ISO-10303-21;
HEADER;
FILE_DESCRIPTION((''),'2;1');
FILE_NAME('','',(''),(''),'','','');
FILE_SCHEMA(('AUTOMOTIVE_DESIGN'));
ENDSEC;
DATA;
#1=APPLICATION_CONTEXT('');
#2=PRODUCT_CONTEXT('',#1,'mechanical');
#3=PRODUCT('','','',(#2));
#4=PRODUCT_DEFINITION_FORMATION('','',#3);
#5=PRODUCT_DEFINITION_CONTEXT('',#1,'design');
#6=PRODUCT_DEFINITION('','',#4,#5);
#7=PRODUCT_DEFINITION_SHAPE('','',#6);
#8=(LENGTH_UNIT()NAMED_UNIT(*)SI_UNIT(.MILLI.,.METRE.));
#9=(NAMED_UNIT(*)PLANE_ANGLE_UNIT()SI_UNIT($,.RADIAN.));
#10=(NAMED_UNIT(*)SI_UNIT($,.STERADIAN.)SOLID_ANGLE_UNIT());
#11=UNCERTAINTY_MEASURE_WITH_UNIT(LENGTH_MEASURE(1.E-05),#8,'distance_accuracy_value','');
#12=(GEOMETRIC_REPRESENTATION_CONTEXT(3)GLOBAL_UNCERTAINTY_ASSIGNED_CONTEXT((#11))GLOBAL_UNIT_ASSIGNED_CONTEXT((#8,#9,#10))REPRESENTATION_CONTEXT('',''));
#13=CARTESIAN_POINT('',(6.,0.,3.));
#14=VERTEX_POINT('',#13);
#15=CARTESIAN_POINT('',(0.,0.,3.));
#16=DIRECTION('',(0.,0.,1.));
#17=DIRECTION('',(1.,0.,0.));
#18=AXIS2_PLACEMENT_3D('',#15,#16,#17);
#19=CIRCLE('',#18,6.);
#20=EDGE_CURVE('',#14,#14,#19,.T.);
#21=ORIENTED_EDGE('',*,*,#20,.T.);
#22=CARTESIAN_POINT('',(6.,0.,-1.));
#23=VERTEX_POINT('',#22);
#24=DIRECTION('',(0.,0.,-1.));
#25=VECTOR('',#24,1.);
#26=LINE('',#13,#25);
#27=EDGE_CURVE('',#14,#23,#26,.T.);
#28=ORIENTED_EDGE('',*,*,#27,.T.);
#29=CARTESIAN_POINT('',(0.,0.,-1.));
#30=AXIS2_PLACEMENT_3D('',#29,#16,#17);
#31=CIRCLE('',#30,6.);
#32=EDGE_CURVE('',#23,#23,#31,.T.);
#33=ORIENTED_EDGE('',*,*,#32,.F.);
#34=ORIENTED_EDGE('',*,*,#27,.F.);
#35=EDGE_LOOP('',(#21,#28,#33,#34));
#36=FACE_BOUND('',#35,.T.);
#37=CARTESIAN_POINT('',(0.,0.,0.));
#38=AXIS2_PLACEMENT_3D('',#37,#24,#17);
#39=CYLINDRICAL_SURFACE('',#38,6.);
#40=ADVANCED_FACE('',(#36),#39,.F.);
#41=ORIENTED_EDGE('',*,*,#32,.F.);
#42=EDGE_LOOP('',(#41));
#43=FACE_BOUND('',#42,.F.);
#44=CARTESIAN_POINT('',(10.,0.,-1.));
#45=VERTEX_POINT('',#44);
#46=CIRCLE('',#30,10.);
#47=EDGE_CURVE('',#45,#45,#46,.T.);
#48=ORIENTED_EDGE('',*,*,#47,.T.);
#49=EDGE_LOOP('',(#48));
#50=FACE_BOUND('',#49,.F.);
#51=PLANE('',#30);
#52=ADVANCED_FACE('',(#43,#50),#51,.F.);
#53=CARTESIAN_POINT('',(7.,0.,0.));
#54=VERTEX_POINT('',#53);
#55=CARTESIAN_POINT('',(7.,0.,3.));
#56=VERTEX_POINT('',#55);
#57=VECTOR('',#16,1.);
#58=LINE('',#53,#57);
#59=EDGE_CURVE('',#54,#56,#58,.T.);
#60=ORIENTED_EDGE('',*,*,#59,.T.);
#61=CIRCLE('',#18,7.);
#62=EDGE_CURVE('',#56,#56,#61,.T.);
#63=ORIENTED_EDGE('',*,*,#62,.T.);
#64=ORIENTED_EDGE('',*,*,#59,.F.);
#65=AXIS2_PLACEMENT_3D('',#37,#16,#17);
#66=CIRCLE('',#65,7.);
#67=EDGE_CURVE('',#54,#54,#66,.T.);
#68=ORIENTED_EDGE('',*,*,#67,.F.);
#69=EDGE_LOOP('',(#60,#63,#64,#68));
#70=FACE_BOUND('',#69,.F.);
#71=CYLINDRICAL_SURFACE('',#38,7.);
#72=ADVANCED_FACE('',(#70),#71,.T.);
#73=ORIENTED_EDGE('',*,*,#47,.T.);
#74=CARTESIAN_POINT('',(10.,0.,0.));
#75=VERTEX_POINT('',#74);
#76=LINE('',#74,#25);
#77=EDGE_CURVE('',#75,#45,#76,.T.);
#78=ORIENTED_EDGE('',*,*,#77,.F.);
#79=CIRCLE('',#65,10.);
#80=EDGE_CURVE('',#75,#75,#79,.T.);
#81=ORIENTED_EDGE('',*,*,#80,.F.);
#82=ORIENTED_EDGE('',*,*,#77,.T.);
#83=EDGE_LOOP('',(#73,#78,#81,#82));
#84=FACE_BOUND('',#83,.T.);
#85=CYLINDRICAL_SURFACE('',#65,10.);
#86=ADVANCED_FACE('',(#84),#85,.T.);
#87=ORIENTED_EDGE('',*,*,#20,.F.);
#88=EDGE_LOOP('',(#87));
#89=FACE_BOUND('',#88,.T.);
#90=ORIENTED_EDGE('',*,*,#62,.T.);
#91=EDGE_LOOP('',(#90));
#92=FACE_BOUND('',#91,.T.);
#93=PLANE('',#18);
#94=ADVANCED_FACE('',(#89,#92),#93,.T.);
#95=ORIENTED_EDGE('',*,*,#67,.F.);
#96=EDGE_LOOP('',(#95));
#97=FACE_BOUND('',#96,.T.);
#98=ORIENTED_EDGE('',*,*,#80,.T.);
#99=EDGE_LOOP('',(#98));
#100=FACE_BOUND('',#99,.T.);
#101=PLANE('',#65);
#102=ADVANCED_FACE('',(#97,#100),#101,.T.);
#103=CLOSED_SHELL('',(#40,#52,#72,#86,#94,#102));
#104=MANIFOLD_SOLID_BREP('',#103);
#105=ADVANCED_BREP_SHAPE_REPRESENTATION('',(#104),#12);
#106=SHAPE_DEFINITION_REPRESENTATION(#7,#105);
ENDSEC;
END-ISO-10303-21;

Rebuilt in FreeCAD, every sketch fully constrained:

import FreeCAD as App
import Part
import Sketcher
from FreeCAD import Vector

doc = App.newDocument("Part")
params = doc.addObject("Spreadsheet::Sheet", "Params")
for row, (alias, value) in enumerate([
    ("sketch1_diameter", "14 mm"),
    ("sketch1_diameter2", "12 mm"),
    ("pad1_length", "3 mm"),
    ("sketch2_diameter", "20 mm"),
    ("sketch2_diameter2", "12 mm"),
    ("pad2_length", "1 mm"),
], start=1):
    params.set(f"A{row}", alias)
    params.set(f"B{row}", "=" + value)
    params.setAlias(f"B{row}", alias)

body = doc.addObject("PartDesign::Body", "Body")

sketch1 = body.newObject("Sketcher::SketchObject", "Sketch")
sketch1.AttachmentSupport = (doc.getObject("XY_Plane"), [""])
sketch1.MapMode = "FlatFace"
sketch1.addGeometry([
    Part.Circle(Vector(0, 0, 0), Vector(0, 0, 1), 7),
    Part.Circle(Vector(0, 0, 0), Vector(0, 0, 1), 6),
], False)
sketch1.addConstraint([
    Sketcher.Constraint("Coincident", 0, 3, -1, 1),
    Sketcher.Constraint("Coincident", 1, 3, -1, 1),
    Sketcher.Constraint("Diameter", 0, 14.0),
    Sketcher.Constraint("Diameter", 1, 12.0),
])
sketch1.setExpression("Constraints[2]", "Params.sketch1_diameter")
sketch1.setExpression("Constraints[3]", "Params.sketch1_diameter2")
pad1 = body.newObject("PartDesign::Pad", "Pad")
pad1.Profile = sketch1
pad1.setExpression("Length", "Params.pad1_length")

sketch2 = body.newObject("Sketcher::SketchObject", "Sketch001")
sketch2.AttachmentSupport = (doc.getObject("XY_Plane"), [""])
sketch2.MapMode = "FlatFace"
sketch2.addGeometry([
    Part.Circle(Vector(0, 0, 0), Vector(0, 0, 1), 10),
    Part.Circle(Vector(0, 0, 0), Vector(0, 0, 1), 6),
], False)
sketch2.addConstraint([
    Sketcher.Constraint("Coincident", 0, 3, -1, 1),
    Sketcher.Constraint("Coincident", 1, 3, -1, 1),
    Sketcher.Constraint("Diameter", 0, 20.0),
    Sketcher.Constraint("Diameter", 1, 12.0),
])
sketch2.setExpression("Constraints[2]", "Params.sketch2_diameter")
sketch2.setExpression("Constraints[3]", "Params.sketch2_diameter2")
pad2 = body.newObject("PartDesign::Pad", "Pad001")
pad2.Profile = sketch2
pad2.setExpression("Length", "Params.pad2_length")
pad2.Reversed = True

doc.recompute()
